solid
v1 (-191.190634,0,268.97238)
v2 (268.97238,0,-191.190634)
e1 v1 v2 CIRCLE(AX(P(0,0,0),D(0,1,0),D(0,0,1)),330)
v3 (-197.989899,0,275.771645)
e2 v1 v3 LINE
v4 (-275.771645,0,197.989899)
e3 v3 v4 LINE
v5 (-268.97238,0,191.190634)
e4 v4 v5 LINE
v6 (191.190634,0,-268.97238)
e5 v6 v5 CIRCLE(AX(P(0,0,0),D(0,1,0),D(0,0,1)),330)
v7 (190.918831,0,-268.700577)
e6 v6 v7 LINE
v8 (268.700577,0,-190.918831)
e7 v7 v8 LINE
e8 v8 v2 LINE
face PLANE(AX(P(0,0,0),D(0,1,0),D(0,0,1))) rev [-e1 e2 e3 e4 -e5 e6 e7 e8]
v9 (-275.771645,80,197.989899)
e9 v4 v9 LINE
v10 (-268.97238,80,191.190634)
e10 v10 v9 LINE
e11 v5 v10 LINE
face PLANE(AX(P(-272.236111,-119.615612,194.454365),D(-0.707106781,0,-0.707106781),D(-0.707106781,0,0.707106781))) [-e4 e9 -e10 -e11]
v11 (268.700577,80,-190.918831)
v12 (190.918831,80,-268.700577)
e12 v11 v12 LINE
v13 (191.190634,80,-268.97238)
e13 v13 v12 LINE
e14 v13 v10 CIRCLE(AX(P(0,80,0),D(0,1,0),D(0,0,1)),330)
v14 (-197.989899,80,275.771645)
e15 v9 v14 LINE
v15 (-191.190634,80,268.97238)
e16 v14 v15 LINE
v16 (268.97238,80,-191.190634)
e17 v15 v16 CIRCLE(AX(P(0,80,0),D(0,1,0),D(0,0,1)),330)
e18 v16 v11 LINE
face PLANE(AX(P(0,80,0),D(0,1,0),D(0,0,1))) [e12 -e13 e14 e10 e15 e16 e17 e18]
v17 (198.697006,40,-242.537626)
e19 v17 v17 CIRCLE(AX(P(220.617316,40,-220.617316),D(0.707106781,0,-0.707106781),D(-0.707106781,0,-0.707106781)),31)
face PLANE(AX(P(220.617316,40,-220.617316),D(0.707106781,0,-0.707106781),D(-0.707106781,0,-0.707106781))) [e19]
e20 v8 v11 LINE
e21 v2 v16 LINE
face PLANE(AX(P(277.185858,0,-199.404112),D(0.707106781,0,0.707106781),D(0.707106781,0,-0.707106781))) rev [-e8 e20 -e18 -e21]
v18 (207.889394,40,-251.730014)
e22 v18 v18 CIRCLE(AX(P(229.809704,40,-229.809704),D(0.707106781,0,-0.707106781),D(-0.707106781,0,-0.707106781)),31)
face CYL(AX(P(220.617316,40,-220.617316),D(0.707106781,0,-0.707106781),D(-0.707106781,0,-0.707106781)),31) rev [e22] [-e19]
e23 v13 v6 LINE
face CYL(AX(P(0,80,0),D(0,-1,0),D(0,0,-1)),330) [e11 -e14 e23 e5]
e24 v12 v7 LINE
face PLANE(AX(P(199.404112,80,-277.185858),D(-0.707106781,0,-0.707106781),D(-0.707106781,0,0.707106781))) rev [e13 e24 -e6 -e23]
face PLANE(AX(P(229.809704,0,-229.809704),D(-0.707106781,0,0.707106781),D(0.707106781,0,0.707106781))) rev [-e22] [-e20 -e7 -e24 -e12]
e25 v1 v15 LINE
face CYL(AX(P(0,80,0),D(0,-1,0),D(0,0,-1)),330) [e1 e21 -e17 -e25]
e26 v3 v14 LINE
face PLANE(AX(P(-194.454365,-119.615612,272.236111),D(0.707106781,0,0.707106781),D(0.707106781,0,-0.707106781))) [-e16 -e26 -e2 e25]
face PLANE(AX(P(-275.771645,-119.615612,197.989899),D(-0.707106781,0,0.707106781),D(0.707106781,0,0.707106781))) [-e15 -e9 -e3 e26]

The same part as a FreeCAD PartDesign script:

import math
import FreeCAD as App
import Part
import Sketcher
Q = App.Units.Quantity

doc = App.newDocument("Part")
body = doc.addObject("PartDesign::Body", "Body")

# Sketch on XZ plane
sketch1 = doc.addObject("Sketcher::SketchObject", "Sketch")
body.addObject(sketch1)
sketch1.AttachmentSupport = (doc.XZ_Plane, [""])
sketch1.MapMode = "FlatFace"
sketch1.addGeometry(Part.Circle(App.Vector(0, 0, 0), App.Vector(0, 0, 1), 330), False)
sketch1.addConstraint(Sketcher.Constraint("Coincident", 0, 3, -1, 1))
sketch1.addConstraint(Sketcher.Constraint("Diameter", 0, 660.0))
pad1 = doc.addObject("PartDesign::Pad", "Pad")
body.addObject(pad1)
pad1.Profile = sketch1
pad1.Length = 80
pad1.Reversed = True

# Sketch on XZ plane
sketch2 = doc.addObject("Sketcher::SketchObject", "Sketch001")
body.addObject(sketch2)
sketch2.AttachmentSupport = (doc.XZ_Plane, [""])
sketch2.MapMode = "FlatFace"
sketch2.addGeometry(Part.LineSegment(App.Vector(-272.2, 194.5, 0), App.Vector(-275.8, 198, 0)), False)
sketch2.addGeometry(Part.LineSegment(App.Vector(-275.8, 198, 0), App.Vector(-198, 275.8, 0)), False)
sketch2.addGeometry(Part.LineSegment(App.Vector(-198, 275.8, 0), App.Vector(-194.5, 272.2, 0)), False)
sketch2.addGeometry(Part.LineSegment(App.Vector(-194.5, 272.2, 0), App.Vector(-191.2, 269, 0)), False)
sketch2.addGeometry(Part.ArcOfCircle(Part.Circle(App.Vector(0, 0, 0), App.Vector(0, 0, 1), 330), math.radians(125.41), math.radians(144.59)), False)
sketch2.addGeometry(Part.LineSegment(App.Vector(-269, 191.2, 0), App.Vector(-272.2, 194.5, 0)), False)
sketch2.addConstraint(Sketcher.Constraint("Coincident", 0, 2, 1, 1))
sketch2.addConstraint(Sketcher.Constraint("Coincident", 1, 2, 2, 1))
sketch2.addConstraint(Sketcher.Constraint("Coincident", 2, 2, 3, 1))
sketch2.addConstraint(Sketcher.Constraint("Coincident", 3, 2, 4, 1))
sketch2.addConstraint(Sketcher.Constraint("Coincident", 4, 2, 5, 1))
sketch2.addConstraint(Sketcher.Constraint("Coincident", 5, 2, 0, 1))
sketch2.addConstraint(Sketcher.Constraint("Coincident", 4, 3, -1, 1))
sketch2.addConstraint(Sketcher.Constraint("Perpendicular", 0, 1))
sketch2.addConstraint(Sketcher.Constraint("Perpendicular", 1, 2))
sketch2.addConstraint(Sketcher.Constraint("Parallel", 2, 3))
sketch2.addConstraint(Sketcher.Constraint("Parallel", 3, 5))
sketch2.addConstraint(Sketcher.Constraint("Equal", 0, 2))
sketch2.addConstraint(Sketcher.Constraint("Equal", 3, 5))
sketch2.addConstraint(Sketcher.Constraint("Radius", 4, 330.0))
sketch2.addConstraint(Sketcher.Constraint("Angle", 0, Q("135 deg")))
sketch2.addConstraint(Sketcher.Constraint("Distance", 0, 5.0))
sketch2.addConstraint(Sketcher.Constraint("Distance", 1, 110.0))
sketch2.addConstraint(Sketcher.Constraint("DistanceY", -1, 1, 0, 2, 197.989899))
pad2 = doc.addObject("PartDesign::Pad", "Pad001")
body.addObject(pad2)
pad2.Profile = sketch2
pad2.Length = 80
pad2.Reversed = True

# Sketch on an angled plane
sketch3 = doc.addObject("Sketcher::SketchObject", "Sketch002")
body.addObject(sketch3)
sketch3.Placement = App.Placement(App.Vector(229.809704, 0, -229.809704), App.Rotation(App.Vector(0.707106781, 0, 0.707106781), App.Vector(0, 0.999999999, 0), App.Vector(-0.707106781, 0, 0.707106781), "ZXY"))
sketch3.addGeometry(Part.LineSegment(App.Vector(-55, 80, 0), App.Vector(-55, 0, 0)), False)
sketch3.addGeometry(Part.LineSegment(App.Vector(-55, 0, 0), App.Vector(55, 0, 0)), False)
sketch3.addGeometry(Part.LineSegment(App.Vector(55, 0, 0), App.Vector(55, 80, 0)), False)
sketch3.addGeometry(Part.LineSegment(App.Vector(55, 80, 0), App.Vector(-55, 80, 0)), False)
sketch3.addConstraint(Sketcher.Constraint("Coincident", 0, 2, 1, 1))
sketch3.addConstraint(Sketcher.Constraint("Coincident", 1, 2, 2, 1))
sketch3.addConstraint(Sketcher.Constraint("Coincident", 2, 2, 3, 1))
sketch3.addConstraint(Sketcher.Constraint("Coincident", 3, 2, 0, 1))
sketch3.addConstraint(Sketcher.Constraint("Vertical", 0))
sketch3.addConstraint(Sketcher.Constraint("Horizontal", 1))
sketch3.addConstraint(Sketcher.Constraint("Vertical", 2))
sketch3.addConstraint(Sketcher.Constraint("Horizontal", 3))
sketch3.addConstraint(Sketcher.Constraint("Symmetric", 0, 2, 1, 2, -1, 1))
sketch3.addConstraint(Sketcher.Constraint("DistanceX", 1, 1, 1, 2, 110.0))
sketch3.addConstraint(Sketcher.Constraint("DistanceY", 0, 2, 0, 1, 80.0))
pad3 = doc.addObject("PartDesign::Pad", "Pad002")
body.addObject(pad3)
pad3.Profile = sketch3
pad3.Length = 650.384388

# Sketch on an angled plane
sketch4 = doc.addObject("Sketcher::SketchObject", "Sketch003")
body.addObject(sketch4)
sketch4.Placement = App.Placement(App.Vector(229.809704, 0, -229.809704), App.Rotation(App.Vector(0.707106781, 0, 0.707106781), App.Vector(0, 0.999999999, 0), App.Vector(-0.707106781, 0, 0.707106781), "ZXY"))
sketch4.addGeometry(Part.LineSegment(App.Vector(-55, 80, 0), App.Vector(-55, 0, 0)), False)
sketch4.addGeometry(Part.LineSegment(App.Vector(-55, 0, 0), App.Vector(55, 0, 0)), False)
sketch4.addGeometry(Part.LineSegment(App.Vector(55, 0, 0), App.Vector(55, 80, 0)), False)
sketch4.addGeometry(Part.LineSegment(App.Vector(55, 80, 0), App.Vector(-55, 80, 0)), False)
sketch4.addConstraint(Sketcher.Constraint("Coincident", 0, 2, 1, 1))
sketch4.addConstraint(Sketcher.Constraint("Coincident", 1, 2, 2, 1))
sketch4.addConstraint(Sketcher.Constraint("Coincident", 2, 2, 3, 1))
sketch4.addConstraint(Sketcher.Constraint("Coincident", 3, 2, 0, 1))
sketch4.addConstraint(Sketcher.Constraint("Vertical", 0))
sketch4.addConstraint(Sketcher.Constraint("Horizontal", 1))
sketch4.addConstraint(Sketcher.Constraint("Vertical", 2))
sketch4.addConstraint(Sketcher.Constraint("Horizontal", 3))
sketch4.addConstraint(Sketcher.Constraint("Symmetric", 0, 2, 1, 2, -1, 1))
sketch4.addConstraint(Sketcher.Constraint("DistanceX", 1, 1, 1, 2, 110.0))
sketch4.addConstraint(Sketcher.Constraint("DistanceY", 0, 2, 0, 1, 80.0))
pocket1 = doc.addObject("PartDesign::Pocket", "Pocket")
body.addObject(pocket1)
pocket1.Profile = sketch4
pocket1.Length = 12

# Sketch on an angled plane
sketch5 = doc.addObject("Sketcher::SketchObject", "Sketch004")
body.addObject(sketch5)
sketch5.Placement = App.Placement(App.Vector(229.809704, 0, -229.809704), App.Rotation(App.Vector(-0.707106781, 0, -0.707106781), App.Vector(0, 0.999999999, 0), App.Vector(0.707106781, 0, -0.707106781), "ZXY"))
sketch5.addGeometry(Part.Circle(App.Vector(0, 40, 0), App.Vector(0, 0, 1), 31), False)
sketch5.addConstraint(Sketcher.Constraint("PointOnObject", 0, 3, -2))
sketch5.addConstraint(Sketcher.Constraint("Diameter", 0, 62.0))
sketch5.addConstraint(Sketcher.Constraint("DistanceY", -1, 1, 0, 3, 40.0))
pocket2 = doc.addObject("PartDesign::Pocket", "Pocket001")
body.addObject(pocket2)
pocket2.Profile = sketch5
pocket2.Length = 13

doc.recompute()
